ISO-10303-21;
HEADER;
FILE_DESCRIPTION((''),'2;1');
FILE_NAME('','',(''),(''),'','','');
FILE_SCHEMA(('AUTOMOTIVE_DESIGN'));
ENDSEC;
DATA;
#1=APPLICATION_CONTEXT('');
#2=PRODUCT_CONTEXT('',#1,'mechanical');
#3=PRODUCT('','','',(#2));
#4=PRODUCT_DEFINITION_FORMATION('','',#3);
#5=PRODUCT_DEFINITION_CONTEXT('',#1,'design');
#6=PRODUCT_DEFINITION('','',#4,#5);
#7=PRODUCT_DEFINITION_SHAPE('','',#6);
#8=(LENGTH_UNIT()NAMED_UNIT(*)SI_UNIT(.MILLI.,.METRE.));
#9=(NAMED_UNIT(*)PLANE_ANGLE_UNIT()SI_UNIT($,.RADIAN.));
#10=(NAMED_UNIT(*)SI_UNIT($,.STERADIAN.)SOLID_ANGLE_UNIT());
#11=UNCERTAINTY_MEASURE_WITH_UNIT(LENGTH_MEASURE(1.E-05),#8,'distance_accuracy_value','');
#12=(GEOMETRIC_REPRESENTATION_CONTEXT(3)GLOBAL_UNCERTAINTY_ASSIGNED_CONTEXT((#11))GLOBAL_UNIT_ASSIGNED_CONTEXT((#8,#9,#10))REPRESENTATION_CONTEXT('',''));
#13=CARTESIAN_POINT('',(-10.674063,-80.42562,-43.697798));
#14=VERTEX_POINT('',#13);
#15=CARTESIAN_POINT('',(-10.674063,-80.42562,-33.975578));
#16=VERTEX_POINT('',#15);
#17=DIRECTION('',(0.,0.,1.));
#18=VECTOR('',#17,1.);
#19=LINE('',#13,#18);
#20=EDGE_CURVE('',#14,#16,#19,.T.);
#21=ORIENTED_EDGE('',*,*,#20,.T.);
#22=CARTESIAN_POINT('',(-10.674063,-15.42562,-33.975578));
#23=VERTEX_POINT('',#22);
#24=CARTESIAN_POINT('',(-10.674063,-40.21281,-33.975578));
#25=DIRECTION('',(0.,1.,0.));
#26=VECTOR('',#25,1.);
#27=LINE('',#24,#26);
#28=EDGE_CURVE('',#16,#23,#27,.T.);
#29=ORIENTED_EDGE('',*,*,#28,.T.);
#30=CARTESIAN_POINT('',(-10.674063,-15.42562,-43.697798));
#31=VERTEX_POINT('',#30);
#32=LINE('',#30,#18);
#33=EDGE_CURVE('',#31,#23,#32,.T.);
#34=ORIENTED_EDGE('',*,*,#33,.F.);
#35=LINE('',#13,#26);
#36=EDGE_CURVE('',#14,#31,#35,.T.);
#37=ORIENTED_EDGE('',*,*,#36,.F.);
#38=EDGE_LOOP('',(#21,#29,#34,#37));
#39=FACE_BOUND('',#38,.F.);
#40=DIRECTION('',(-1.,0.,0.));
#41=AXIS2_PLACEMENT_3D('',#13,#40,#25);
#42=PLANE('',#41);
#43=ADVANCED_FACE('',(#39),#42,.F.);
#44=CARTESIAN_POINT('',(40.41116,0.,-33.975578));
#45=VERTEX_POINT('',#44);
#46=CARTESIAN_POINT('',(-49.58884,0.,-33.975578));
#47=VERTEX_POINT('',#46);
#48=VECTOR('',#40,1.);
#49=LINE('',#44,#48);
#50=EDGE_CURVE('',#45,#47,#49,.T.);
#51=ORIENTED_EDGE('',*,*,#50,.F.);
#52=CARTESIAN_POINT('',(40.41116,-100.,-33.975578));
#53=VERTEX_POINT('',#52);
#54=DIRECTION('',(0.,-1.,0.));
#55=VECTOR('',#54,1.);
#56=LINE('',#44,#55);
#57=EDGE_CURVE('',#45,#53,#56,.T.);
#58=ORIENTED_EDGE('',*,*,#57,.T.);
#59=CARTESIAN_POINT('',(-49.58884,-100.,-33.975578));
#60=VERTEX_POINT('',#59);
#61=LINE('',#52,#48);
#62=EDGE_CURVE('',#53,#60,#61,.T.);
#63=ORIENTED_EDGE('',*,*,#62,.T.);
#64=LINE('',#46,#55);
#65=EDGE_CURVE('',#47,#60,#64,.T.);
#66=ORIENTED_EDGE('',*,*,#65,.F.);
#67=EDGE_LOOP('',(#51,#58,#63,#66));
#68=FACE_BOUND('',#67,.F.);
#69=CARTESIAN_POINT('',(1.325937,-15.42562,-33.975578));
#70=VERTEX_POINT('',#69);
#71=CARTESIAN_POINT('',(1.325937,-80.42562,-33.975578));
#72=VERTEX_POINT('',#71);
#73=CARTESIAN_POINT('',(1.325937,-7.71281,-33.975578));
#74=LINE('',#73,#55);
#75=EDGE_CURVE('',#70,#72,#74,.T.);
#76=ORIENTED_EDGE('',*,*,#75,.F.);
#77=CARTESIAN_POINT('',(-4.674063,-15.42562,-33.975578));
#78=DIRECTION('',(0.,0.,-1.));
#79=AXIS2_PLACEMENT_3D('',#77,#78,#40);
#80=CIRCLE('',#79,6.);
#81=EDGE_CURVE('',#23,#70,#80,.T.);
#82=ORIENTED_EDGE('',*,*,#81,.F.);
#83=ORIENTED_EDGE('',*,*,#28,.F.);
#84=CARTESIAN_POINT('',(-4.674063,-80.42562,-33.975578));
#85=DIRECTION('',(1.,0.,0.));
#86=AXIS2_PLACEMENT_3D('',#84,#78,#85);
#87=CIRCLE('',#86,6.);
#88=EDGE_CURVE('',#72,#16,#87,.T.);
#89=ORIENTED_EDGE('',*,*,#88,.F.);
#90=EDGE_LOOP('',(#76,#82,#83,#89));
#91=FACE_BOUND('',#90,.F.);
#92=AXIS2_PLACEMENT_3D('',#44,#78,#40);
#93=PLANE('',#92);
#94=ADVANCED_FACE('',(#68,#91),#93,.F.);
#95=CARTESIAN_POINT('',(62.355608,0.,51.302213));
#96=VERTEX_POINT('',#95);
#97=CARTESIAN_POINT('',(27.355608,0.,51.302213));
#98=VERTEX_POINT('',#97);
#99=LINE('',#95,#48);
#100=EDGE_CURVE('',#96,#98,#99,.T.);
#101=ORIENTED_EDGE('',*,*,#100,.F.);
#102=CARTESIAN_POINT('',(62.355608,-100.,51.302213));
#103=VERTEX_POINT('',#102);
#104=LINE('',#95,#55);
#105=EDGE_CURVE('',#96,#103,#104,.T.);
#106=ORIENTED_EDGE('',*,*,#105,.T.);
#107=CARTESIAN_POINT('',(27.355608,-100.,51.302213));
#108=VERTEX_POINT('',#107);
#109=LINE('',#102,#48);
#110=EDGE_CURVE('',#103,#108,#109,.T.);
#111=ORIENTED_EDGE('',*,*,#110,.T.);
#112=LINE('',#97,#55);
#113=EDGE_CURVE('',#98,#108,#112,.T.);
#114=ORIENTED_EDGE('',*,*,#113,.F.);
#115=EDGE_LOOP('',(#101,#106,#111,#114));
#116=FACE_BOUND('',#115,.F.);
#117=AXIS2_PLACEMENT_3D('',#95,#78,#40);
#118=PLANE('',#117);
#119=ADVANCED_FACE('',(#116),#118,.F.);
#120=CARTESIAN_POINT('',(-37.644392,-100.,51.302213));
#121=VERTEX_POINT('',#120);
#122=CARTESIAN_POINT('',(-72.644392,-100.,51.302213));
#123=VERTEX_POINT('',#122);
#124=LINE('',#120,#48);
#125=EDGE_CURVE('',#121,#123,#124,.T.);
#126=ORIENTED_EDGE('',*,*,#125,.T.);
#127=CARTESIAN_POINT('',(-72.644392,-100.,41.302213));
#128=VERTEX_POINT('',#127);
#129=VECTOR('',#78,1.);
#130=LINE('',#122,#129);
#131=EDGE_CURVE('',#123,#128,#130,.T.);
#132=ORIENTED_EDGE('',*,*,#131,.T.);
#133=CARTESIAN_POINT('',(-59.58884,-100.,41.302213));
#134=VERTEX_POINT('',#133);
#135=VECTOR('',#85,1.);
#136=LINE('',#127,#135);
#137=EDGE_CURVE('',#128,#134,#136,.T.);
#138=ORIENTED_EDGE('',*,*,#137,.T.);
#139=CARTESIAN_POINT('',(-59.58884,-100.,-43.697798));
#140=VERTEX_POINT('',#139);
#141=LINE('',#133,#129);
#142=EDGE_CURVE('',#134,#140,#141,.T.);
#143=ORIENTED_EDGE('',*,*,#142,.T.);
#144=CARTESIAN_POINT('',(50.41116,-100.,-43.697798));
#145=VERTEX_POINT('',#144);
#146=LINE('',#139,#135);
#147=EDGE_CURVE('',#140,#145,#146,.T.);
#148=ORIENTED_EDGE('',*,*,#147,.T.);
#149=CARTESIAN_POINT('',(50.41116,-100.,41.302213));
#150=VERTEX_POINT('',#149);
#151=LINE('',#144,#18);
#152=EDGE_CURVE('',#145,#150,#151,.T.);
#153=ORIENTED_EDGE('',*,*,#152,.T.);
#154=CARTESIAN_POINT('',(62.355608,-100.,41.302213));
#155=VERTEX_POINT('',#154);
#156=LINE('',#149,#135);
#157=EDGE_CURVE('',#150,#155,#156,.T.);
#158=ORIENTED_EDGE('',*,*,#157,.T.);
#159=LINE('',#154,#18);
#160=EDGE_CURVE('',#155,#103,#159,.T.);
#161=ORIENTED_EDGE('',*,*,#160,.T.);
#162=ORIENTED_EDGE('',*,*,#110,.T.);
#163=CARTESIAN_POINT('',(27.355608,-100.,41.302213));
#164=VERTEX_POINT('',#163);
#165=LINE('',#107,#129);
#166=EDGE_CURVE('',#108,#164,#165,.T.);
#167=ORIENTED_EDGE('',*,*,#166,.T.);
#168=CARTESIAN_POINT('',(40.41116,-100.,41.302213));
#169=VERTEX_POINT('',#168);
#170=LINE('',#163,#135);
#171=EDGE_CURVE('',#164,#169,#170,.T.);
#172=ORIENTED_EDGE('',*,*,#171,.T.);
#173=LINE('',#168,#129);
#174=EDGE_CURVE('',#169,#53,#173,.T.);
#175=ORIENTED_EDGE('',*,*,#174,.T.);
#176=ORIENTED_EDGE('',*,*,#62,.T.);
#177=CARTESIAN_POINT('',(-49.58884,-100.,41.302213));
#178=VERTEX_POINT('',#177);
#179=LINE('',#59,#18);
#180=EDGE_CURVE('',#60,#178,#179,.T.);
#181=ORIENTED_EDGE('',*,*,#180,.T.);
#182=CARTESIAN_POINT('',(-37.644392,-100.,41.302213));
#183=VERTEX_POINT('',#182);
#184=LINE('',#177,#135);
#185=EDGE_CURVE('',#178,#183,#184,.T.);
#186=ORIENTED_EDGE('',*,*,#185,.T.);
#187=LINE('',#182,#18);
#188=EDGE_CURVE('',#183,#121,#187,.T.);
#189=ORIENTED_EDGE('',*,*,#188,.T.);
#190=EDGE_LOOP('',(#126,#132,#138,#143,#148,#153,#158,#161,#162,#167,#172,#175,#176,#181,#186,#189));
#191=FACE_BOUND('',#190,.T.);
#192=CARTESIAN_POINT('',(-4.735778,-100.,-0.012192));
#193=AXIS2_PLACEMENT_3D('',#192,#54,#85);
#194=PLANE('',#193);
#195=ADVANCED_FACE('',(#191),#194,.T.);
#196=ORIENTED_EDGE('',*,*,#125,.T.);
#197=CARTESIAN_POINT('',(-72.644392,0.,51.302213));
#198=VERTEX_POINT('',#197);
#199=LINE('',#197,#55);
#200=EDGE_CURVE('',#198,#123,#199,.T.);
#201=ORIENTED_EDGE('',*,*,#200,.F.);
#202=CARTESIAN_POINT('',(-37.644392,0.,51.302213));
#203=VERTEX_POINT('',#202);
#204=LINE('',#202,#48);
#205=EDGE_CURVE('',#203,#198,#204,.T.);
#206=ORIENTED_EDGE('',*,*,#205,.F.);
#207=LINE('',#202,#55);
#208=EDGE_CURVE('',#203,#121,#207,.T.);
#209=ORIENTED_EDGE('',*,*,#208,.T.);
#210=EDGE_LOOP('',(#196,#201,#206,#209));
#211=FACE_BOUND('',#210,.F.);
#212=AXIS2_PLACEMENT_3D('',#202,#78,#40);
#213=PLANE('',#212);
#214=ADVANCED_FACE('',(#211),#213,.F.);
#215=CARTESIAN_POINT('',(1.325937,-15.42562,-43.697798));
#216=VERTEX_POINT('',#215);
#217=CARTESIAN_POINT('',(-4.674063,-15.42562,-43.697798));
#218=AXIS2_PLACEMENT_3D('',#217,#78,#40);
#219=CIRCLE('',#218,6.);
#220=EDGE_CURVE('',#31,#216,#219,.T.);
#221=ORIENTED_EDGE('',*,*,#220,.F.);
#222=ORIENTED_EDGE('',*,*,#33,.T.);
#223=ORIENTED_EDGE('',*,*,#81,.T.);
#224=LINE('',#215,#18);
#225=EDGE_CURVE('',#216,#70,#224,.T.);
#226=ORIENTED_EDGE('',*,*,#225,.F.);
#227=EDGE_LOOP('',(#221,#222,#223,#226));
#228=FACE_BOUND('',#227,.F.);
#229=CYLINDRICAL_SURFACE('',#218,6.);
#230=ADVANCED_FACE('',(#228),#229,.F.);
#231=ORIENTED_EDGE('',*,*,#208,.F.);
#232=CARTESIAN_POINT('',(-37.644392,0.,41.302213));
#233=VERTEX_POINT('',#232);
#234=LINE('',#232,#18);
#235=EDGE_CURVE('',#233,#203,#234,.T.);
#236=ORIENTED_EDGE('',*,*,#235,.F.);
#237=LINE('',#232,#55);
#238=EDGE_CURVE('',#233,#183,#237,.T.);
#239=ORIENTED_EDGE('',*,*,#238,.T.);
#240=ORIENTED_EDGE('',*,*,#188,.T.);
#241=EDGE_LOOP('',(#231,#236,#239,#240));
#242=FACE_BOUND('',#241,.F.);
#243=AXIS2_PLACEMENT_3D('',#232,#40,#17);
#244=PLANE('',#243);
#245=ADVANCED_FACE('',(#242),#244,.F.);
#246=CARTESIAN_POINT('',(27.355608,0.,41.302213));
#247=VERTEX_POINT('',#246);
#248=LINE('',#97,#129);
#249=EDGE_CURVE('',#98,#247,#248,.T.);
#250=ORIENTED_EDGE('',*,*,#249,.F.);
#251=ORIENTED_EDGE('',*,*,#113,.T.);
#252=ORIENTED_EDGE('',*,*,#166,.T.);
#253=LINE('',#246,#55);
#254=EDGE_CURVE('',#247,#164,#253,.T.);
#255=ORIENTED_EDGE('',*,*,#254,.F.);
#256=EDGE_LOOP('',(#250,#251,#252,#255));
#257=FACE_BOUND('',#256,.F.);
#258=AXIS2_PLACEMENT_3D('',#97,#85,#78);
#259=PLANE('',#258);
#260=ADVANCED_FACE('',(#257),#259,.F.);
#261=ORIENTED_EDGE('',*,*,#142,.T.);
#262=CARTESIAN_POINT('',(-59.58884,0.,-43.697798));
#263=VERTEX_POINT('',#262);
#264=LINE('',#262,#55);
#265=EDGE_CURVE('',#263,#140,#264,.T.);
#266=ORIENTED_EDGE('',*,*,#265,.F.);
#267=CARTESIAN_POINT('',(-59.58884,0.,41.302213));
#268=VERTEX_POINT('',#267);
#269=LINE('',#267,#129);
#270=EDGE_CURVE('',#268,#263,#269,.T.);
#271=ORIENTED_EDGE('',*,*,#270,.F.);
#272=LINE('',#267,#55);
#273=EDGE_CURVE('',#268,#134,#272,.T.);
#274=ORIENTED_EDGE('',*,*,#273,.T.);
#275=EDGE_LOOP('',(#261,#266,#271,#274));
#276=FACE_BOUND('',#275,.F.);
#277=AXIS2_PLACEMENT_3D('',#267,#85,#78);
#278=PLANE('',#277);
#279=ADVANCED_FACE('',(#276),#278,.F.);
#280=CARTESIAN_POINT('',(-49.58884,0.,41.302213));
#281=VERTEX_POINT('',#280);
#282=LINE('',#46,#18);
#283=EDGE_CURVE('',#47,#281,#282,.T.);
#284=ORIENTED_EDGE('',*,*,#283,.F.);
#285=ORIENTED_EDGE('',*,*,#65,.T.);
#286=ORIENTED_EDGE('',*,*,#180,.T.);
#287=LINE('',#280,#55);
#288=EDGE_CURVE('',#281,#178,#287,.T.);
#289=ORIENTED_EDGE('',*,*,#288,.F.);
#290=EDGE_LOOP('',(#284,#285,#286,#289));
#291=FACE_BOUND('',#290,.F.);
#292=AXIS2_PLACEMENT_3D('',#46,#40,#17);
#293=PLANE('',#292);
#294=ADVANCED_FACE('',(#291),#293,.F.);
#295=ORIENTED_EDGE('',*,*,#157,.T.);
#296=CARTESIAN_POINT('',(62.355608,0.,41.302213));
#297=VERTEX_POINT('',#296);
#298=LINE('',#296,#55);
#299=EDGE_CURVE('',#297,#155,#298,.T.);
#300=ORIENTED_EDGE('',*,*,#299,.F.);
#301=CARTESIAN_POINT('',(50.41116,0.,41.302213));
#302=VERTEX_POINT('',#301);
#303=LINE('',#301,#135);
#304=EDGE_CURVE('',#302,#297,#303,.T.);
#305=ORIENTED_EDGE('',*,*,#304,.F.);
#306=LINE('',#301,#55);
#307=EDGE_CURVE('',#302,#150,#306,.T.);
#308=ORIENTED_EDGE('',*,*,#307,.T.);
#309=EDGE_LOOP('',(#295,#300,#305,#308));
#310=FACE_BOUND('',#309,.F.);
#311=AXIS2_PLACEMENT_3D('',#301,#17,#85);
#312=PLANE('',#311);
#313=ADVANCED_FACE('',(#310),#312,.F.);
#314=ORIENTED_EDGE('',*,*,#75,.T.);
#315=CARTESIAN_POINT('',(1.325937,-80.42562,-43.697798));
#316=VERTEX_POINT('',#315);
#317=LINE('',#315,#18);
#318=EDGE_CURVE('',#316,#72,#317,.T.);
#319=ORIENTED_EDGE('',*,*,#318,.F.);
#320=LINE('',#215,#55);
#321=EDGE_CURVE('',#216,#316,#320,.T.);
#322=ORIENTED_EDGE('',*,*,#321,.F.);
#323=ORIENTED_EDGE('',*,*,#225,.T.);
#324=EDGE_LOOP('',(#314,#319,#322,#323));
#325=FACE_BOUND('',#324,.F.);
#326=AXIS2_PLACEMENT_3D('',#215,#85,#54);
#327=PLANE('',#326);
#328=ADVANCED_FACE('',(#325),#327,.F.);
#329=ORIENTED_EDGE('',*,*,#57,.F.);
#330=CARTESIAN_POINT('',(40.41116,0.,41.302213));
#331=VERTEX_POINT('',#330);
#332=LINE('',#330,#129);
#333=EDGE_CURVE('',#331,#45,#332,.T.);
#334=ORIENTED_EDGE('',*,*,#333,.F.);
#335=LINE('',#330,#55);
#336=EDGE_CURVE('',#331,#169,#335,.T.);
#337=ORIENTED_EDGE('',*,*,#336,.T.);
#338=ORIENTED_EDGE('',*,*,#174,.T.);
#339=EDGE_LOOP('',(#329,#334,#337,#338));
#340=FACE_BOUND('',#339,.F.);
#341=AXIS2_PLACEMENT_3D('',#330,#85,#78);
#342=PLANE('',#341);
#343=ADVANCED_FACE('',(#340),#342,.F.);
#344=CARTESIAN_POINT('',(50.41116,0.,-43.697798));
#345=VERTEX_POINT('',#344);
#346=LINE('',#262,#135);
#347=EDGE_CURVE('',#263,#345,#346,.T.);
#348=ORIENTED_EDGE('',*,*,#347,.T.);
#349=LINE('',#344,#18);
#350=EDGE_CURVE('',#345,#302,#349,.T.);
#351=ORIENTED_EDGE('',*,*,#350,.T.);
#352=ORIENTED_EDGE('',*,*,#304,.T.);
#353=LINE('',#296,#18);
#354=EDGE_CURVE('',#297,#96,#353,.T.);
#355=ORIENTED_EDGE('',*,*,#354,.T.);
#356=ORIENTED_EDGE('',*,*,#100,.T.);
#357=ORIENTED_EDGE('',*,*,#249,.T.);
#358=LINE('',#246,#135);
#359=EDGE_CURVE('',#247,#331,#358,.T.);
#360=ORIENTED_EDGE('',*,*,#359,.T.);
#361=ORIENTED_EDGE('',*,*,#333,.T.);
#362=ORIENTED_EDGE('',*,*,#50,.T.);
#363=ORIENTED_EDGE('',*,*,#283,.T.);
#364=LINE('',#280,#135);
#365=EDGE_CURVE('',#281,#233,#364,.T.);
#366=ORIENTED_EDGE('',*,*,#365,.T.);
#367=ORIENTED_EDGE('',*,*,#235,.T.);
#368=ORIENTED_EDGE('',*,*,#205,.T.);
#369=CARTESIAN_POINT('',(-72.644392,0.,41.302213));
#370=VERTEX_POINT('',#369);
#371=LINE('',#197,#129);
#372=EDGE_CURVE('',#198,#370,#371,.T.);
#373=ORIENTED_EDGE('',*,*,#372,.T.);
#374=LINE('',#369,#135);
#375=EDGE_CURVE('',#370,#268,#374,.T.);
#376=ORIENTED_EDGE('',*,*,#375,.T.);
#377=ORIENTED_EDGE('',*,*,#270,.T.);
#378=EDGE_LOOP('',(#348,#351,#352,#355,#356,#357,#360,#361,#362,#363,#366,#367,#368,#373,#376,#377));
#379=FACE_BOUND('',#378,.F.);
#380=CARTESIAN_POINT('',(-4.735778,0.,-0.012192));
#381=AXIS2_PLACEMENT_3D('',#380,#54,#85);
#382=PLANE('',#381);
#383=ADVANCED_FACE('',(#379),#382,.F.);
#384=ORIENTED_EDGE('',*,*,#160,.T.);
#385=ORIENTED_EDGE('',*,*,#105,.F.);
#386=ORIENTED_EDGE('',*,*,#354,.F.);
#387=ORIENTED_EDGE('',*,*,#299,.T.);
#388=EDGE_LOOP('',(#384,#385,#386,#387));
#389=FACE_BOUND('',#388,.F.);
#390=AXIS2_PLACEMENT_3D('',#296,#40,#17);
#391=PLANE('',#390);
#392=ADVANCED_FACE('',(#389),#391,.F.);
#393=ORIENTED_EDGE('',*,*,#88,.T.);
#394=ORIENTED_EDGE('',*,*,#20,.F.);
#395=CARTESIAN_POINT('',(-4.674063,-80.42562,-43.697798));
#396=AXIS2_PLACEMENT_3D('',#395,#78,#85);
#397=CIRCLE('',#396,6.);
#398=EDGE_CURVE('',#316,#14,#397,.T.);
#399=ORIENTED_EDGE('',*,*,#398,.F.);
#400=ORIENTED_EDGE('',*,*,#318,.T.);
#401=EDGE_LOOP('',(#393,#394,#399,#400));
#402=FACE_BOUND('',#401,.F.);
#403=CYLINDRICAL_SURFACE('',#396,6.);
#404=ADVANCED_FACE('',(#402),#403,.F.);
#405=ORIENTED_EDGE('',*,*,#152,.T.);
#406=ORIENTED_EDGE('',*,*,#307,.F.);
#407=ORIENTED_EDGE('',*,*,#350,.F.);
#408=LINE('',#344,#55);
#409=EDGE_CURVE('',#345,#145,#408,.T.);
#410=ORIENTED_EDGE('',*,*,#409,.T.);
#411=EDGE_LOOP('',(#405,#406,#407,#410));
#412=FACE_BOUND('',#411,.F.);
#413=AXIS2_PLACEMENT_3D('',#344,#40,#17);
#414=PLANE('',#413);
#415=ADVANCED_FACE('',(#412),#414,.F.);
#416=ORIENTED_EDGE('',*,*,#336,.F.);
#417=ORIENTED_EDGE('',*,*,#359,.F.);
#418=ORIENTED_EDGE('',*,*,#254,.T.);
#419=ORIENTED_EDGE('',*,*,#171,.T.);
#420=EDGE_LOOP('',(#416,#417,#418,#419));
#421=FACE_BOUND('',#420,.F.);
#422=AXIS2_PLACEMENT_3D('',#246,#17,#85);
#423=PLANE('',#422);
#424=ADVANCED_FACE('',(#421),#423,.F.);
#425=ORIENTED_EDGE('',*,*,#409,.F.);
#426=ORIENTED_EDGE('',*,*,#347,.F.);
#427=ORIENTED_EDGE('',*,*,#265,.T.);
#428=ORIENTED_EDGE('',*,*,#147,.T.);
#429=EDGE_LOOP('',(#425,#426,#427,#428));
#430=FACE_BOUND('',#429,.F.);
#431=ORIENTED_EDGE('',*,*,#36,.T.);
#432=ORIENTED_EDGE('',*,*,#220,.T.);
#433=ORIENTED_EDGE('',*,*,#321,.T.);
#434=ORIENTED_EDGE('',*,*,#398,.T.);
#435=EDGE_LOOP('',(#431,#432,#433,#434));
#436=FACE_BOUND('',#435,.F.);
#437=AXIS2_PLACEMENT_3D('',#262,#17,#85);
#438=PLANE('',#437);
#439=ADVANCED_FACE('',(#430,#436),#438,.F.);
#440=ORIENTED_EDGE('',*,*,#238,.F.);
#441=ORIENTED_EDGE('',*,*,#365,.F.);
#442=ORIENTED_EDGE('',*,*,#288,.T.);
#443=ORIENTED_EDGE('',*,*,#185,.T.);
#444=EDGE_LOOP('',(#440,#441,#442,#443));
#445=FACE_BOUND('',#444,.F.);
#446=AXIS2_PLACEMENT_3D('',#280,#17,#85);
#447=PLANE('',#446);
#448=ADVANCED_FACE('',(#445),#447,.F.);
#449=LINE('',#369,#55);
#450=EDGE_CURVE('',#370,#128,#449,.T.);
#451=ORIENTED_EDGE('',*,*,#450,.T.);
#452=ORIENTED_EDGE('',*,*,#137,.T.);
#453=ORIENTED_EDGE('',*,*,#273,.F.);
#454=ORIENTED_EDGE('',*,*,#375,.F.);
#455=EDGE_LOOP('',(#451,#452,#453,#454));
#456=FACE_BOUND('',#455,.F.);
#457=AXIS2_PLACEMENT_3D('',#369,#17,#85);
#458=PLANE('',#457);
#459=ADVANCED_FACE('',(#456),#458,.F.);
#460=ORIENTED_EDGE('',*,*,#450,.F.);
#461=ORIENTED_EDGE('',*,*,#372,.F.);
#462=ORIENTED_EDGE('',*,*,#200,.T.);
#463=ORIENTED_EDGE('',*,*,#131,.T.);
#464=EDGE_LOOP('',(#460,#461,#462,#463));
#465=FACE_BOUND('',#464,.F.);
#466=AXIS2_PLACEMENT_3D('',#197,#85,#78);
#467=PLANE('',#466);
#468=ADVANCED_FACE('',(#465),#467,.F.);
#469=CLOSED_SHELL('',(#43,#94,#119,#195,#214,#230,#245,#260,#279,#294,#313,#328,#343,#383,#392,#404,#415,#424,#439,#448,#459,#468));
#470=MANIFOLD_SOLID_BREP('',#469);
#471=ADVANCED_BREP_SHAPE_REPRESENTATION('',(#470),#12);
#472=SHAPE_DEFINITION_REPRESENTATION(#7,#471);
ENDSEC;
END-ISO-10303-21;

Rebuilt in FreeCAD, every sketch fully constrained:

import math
import FreeCAD as App
import Part
import Sketcher
from FreeCAD import Vector
Q = App.Units.Quantity


def add_polygon(sketch, points):
    """Adds a closed chain of lines whose ends are joined by coincident constraints."""
    first, n = sketch.GeometryCount, len(points)
    for a, b in zip(points, points[1:] + points[:1]):
        sketch.addGeometry(Part.LineSegment(App.Vector(*a, 0), App.Vector(*b, 0)), False)
    for i in range(n):
        sketch.addConstraint(Sketcher.Constraint("Coincident", first + i, 2, first + (i + 1) % n, 1))

doc = App.newDocument("Part")
params = doc.addObject("Spreadsheet::Sheet", "Params")
for row, (alias, value) in enumerate([
    ("sketch1_width", "110 mm"),
    ("sketch1_width2", "35 mm"),
    ("sketch1_width3", "90 mm"),
    ("sketch1_height", "10 mm"),
    ("pad1_length", "100 mm"),
    ("sketch2_radius", "6 mm"),
    ("sketch2_height", "65 mm"),
    ("pocket1_length", "29 mm"),
], start=1):
    params.set(f"A{row}", alias)
    params.set(f"B{row}", "=" + value)
    params.setAlias(f"B{row}", alias)

body = doc.addObject("PartDesign::Body", "Body")

# Sketch on XZ plane
sketch1 = body.newObject("Sketcher::SketchObject", "Sketch")
sketch1.AttachmentSupport = (doc.getObject("XZ_Plane"), [""])
sketch1.MapMode = "FlatFace"
add_polygon(sketch1, [(-73, 51), (-73, 41), (-60, 41), (-60, -44), (50, -44), (50, 41), (62, 41), (62, 51), (27, 51), (27, 41), (40, 41), (40, -34), (-50, -34), (-50, 41), (-38, 41), (-38, 51)])  # lines 0-15
sketch1.addConstraint([
    Sketcher.Constraint("Vertical", 0),
    Sketcher.Constraint("Horizontal", 1),
    Sketcher.Constraint("Vertical", 2),
    Sketcher.Constraint("Horizontal", 3),
    Sketcher.Constraint("Vertical", 4),
    Sketcher.Constraint("Horizontal", 5),
    Sketcher.Constraint("Vertical", 6),
    Sketcher.Constraint("Horizontal", 7),
    Sketcher.Constraint("Vertical", 8),
    Sketcher.Constraint("Horizontal", 9),
    Sketcher.Constraint("Vertical", 10),
    Sketcher.Constraint("Horizontal", 11),
    Sketcher.Constraint("Vertical", 12),
    Sketcher.Constraint("Horizontal", 13),
    Sketcher.Constraint("Vertical", 14),
    Sketcher.Constraint("Horizontal", 15),
    Sketcher.Constraint("Horizontal", 1, 2, 4, 2),
    Sketcher.Constraint("Horizontal", 5, 2, 8, 2),
    Sketcher.Constraint("Horizontal", 9, 2, 12, 2),
    Sketcher.Constraint("Horizontal", 7, 2, 14, 2),
    Sketcher.Constraint("Equal", 1, 9),
    Sketcher.Constraint("Equal", 5, 13),
    Sketcher.Constraint("Equal", 7, 15),
    Sketcher.Constraint("DistanceX", 3, 1, 3, 2, Q("110 mm")),
    Sketcher.Constraint("DistanceX", 7, 2, 7, 1, Q("35 mm")),
    Sketcher.Constraint("DistanceX", 11, 2, 11, 1, Q("90 mm")),
    Sketcher.Constraint("DistanceY", 0, 2, 0, 1, Q("10 mm")),
    Sketcher.Constraint("DistanceX", 1, 1, 1, 2, Q("13.055552 mm")),
    Sketcher.Constraint("DistanceY", 2, 2, 2, 1, Q("85.000011 mm")),
    Sketcher.Constraint("DistanceY", 10, 2, 10, 1, Q("75.277791 mm")),
    Sketcher.Constraint("DistanceX", 0, 2, -1, 1, Q("72.644392 mm")),
    Sketcher.Constraint("DistanceY", -1, 1, 0, 2, Q("41.302213 mm")),
])
sketch1.setExpression("Constraints[39]", "Params.sketch1_width")
sketch1.setExpression("Constraints[40]", "Params.sketch1_width2")
sketch1.setExpression("Constraints[41]", "Params.sketch1_width3")
sketch1.setExpression("Constraints[42]", "Params.sketch1_height")
pad1 = body.newObject("PartDesign::Pad", "Pad")
pad1.Profile = sketch1
pad1.setExpression("Length", "Params.pad1_length")

# Sketch on XY plane
sketch2 = body.newObject("Sketcher::SketchObject", "Sketch001")
sketch2.AttachmentSupport = (doc.getObject("XY_Plane"), [""])
sketch2.MapMode = "FlatFace"
sketch2.AttachmentOffset = App.Placement(Vector(0, 0, -43.697798), App.Rotation())
sketch2.addGeometry([
    Part.ArcOfCircle(Part.Circle(Vector(-5, -80, 0), Vector(0, 0, 1), 6), math.radians(180), math.radians(360)),
    Part.LineSegment(Vector(-11, -80, 0), Vector(-11, -15, 0)),
    Part.ArcOfCircle(Part.Circle(Vector(-5, -15, 0), Vector(0, 0, 1), 6), math.radians(0), math.radians(180)),
    Part.LineSegment(Vector(1, -15, 0), Vector(1, -80, 0)),
], False)
sketch2.addConstraint([
    Sketcher.Constraint("Tangent", 0, 1, 1, 1),
    Sketcher.Constraint("Tangent", 1, 2, 2, 2),
    Sketcher.Constraint("Tangent", 2, 1, 3, 1),
    Sketcher.Constraint("Tangent", 3, 2, 0, 2),
    Sketcher.Constraint("Vertical", 1),
    Sketcher.Constraint("Vertical", 3),
    Sketcher.Constraint("Radius", 0, Q("6 mm")),
    Sketcher.Constraint("DistanceY", 1, 1, 1, 2, Q("65 mm")),
    Sketcher.Constraint("DistanceY", 0, 3, -1, 1, Q("80.42562 mm")),
    Sketcher.Constraint("DistanceX", 0, 3, -1, 1, Q("4.674063 mm")),
])
sketch2.setExpression("Constraints[6]", "Params.sketch2_radius")
sketch2.setExpression("Constraints[7]", "Params.sketch2_height")
pocket1 = body.newObject("PartDesign::Pocket", "Pocket")
pocket1.Profile = sketch2
pocket1.setExpression("Length", "Params.pocket1_length")
pocket1.Reversed = True

doc.recompute()
